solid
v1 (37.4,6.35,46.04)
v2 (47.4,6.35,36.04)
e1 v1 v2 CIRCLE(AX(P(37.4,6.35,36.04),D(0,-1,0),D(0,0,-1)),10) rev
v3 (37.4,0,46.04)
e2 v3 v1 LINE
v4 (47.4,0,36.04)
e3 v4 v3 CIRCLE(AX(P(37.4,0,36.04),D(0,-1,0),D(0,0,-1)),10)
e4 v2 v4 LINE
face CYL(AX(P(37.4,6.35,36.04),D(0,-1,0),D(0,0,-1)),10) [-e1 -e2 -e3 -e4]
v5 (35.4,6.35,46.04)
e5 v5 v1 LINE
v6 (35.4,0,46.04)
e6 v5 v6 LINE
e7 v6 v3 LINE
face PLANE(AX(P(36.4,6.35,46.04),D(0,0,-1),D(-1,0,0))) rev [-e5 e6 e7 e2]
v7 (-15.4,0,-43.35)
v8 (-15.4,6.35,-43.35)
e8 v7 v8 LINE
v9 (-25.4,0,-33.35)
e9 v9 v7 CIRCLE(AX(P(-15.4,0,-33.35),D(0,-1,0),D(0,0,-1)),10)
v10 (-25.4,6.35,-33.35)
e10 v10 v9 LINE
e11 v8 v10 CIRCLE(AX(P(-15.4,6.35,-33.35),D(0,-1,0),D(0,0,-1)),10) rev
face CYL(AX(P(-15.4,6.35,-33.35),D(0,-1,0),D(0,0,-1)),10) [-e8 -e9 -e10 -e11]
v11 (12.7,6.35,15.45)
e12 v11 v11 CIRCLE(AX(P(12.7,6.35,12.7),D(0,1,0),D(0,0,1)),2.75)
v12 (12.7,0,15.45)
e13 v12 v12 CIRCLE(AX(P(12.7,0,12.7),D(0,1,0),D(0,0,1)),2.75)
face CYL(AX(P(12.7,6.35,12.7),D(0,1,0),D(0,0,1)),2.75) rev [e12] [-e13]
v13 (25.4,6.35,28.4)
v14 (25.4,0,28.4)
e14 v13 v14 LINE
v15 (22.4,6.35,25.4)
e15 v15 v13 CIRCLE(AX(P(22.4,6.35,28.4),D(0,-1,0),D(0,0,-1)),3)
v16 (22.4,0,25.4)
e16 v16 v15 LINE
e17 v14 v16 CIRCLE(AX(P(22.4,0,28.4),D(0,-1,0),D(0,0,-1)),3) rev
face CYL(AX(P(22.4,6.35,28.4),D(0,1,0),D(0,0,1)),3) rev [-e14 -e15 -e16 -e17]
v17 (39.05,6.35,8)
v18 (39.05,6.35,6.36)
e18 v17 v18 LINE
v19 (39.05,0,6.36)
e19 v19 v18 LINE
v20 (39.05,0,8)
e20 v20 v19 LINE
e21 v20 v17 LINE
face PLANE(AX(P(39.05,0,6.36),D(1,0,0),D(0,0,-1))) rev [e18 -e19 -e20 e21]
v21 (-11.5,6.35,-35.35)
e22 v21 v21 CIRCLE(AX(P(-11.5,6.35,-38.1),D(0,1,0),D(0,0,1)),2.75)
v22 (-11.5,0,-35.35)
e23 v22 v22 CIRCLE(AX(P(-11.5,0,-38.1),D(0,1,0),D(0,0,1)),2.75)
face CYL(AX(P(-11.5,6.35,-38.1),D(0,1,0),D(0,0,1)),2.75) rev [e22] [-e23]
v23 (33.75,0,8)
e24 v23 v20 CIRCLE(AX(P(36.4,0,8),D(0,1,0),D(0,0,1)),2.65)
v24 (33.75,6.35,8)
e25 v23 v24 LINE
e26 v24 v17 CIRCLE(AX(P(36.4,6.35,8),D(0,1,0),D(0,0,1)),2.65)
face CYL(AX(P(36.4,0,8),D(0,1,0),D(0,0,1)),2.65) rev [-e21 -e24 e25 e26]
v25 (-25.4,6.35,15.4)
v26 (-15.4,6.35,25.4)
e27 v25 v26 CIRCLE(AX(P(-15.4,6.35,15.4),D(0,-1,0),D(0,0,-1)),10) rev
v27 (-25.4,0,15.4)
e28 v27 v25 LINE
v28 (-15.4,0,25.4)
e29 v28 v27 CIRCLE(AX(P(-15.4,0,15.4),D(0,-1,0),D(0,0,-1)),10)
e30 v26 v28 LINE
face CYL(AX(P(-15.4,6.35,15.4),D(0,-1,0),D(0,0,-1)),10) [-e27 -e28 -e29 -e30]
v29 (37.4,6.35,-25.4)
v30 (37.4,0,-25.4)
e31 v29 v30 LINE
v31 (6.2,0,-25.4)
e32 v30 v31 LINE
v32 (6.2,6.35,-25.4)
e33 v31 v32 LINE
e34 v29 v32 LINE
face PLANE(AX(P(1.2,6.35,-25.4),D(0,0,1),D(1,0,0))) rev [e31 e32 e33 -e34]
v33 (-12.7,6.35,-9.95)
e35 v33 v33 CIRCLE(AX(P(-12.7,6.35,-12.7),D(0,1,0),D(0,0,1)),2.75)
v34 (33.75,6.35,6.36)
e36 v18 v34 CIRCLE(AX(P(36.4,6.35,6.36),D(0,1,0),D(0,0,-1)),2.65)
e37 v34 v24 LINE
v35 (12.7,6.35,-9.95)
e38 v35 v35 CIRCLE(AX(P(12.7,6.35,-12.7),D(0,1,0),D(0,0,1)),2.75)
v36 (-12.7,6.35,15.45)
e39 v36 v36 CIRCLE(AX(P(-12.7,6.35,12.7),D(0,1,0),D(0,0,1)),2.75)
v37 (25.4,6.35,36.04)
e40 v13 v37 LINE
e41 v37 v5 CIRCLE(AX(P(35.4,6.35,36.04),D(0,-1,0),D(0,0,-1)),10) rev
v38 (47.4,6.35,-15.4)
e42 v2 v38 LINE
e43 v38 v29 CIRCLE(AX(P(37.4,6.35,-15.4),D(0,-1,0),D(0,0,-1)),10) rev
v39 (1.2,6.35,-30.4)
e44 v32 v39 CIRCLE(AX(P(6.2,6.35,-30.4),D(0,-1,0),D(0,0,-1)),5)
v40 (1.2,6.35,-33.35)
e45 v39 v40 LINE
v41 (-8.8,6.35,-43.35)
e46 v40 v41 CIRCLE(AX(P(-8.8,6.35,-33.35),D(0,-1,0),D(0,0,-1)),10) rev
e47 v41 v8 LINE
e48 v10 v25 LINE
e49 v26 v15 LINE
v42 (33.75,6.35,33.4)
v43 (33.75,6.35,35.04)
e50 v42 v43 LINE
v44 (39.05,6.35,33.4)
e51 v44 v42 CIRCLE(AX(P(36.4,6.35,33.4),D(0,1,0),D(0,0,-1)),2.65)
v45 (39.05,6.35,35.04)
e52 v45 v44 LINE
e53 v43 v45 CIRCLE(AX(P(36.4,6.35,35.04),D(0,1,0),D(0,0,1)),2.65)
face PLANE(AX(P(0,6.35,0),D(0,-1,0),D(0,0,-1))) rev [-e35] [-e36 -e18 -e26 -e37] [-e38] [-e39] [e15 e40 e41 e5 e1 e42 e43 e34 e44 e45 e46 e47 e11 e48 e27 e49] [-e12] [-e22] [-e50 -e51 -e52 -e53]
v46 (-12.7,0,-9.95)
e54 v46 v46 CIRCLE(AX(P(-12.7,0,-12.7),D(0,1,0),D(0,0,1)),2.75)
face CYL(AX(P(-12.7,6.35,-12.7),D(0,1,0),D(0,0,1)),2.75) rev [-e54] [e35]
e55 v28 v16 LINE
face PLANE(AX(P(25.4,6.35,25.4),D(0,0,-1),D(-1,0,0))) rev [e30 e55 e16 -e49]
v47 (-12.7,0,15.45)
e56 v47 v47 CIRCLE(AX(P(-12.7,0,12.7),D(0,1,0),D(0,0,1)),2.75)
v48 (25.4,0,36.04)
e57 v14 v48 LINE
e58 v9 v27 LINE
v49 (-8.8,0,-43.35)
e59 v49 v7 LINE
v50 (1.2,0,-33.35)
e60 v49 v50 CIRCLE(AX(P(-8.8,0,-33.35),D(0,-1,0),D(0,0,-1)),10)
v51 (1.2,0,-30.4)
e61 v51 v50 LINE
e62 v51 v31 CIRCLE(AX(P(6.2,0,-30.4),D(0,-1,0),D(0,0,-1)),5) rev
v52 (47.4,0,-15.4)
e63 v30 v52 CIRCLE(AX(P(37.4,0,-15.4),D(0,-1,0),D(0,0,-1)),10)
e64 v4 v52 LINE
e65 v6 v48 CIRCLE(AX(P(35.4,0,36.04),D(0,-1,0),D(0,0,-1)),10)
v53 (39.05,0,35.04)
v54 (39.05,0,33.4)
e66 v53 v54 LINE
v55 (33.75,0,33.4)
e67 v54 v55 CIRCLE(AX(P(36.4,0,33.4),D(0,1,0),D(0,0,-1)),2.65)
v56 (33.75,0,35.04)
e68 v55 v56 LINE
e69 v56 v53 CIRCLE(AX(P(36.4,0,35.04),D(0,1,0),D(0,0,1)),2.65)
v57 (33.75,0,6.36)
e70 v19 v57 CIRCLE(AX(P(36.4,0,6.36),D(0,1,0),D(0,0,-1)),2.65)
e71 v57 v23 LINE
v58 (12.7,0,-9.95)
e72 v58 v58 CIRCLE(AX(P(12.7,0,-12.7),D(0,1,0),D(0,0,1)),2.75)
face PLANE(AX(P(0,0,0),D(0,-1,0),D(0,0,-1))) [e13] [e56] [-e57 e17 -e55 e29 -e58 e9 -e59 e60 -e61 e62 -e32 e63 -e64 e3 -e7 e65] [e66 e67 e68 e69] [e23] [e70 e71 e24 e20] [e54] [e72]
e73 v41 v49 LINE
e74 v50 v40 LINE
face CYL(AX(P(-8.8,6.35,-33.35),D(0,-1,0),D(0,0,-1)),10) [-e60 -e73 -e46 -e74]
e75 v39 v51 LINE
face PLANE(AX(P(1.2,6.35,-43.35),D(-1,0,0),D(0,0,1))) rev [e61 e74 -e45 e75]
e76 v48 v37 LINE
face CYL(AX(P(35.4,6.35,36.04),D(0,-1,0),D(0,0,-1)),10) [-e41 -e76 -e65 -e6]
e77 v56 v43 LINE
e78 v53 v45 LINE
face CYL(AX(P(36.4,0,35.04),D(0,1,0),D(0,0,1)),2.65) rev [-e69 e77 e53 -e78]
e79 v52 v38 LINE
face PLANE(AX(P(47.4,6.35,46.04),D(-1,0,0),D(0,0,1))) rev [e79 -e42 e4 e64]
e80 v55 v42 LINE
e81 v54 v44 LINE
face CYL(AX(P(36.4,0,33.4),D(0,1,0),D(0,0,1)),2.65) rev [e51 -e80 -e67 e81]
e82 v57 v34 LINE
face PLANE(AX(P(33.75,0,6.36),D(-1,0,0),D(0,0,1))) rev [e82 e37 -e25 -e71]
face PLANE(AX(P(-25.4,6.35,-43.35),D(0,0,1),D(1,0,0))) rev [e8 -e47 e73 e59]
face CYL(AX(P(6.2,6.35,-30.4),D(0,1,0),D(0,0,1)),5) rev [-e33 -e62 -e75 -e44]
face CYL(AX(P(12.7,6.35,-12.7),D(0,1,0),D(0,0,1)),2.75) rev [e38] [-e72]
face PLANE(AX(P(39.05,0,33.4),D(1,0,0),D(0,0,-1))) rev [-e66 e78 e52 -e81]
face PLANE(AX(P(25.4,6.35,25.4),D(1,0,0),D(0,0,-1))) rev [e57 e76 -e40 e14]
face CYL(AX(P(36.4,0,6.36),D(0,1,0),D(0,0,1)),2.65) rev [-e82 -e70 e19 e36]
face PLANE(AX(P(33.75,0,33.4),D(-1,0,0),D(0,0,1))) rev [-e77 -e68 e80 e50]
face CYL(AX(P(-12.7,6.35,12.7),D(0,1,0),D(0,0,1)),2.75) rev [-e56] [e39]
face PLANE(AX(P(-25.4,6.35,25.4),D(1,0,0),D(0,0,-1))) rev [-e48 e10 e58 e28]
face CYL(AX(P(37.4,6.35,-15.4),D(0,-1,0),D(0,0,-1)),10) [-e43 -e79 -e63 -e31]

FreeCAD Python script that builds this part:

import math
import FreeCAD as App
import Part
import Sketcher
from FreeCAD import Vector
Q = App.Units.Quantity


def edges_at(feature, points):
    """Names of the edges that pass closest to the given points."""
    edges = feature.Shape.Edges
    near = lambda p: min(range(len(edges)), key=lambda i: edges[i].distToShape(Part.Vertex(*p))[0])
    return sorted({f"Edge{near(p) + 1}" for p in points})


def add_polygon(sketch, points):
    """Adds a closed chain of lines whose ends are joined by coincident constraints."""
    first, n = sketch.GeometryCount, len(points)
    for a, b in zip(points, points[1:] + points[:1]):
        sketch.addGeometry(Part.LineSegment(App.Vector(*a, 0), App.Vector(*b, 0)), False)
    for i in range(n):
        sketch.addConstraint(Sketcher.Constraint("Coincident", first + i, 2, first + (i + 1) % n, 1))

doc = App.newDocument("Part")
params = doc.addObject("Spreadsheet::Sheet", "Params")
for row, (alias, value) in enumerate([
    ("sketch1_width", "22 mm"),
    ("sketch1_width2", "50.8 mm"),
    ("sketch1_width3", "46.2 mm"),
    ("sketch1_height", "20.64 mm"),
    ("sketch1_height2", "71.44 mm"),
    ("pad1_length", "6.35 mm"),
    ("sketch2_diameter", "5.5 mm"),
    ("hole_diameter", "5.5 mm"),
    ("sketch3_radius", "2.65 mm"),
    ("sketch3_height", "1.64 mm"),
    ("fillet_radius", "10 mm"),
    ("fillet2_radius", "3 mm"),
    ("fillet3_radius", "5 mm"),
], start=1):
    params.set(f"A{row}", alias)
    params.set(f"B{row}", "=" + value)
    params.setAlias(f"B{row}", alias)

body = doc.addObject("PartDesign::Body", "Body")

# Sketch on XZ plane
sketch1 = body.newObject("Sketcher::SketchObject", "Sketch")
sketch1.AttachmentSupport = (doc.getObject("XZ_Plane"), [""])
sketch1.MapMode = "FlatFace"
add_polygon(sketch1, [(-25.4, 25.4), (25.4, 25.4), (25.4, 46.04), (47.4, 46.04), (47.4, -25.4), (1.2, -25.4), (1.2, -43.35), (-25.4, -43.35)])  # lines 0-7
sketch1.addConstraint([
    Sketcher.Constraint("Horizontal", 0),
    Sketcher.Constraint("Vertical", 1),
    Sketcher.Constraint("Horizontal", 2),
    Sketcher.Constraint("Vertical", 3),
    Sketcher.Constraint("Horizontal", 4),
    Sketcher.Constraint("Vertical", 5),
    Sketcher.Constraint("Horizontal", 6),
    Sketcher.Constraint("Vertical", 7),
    Sketcher.Constraint("DistanceX", 2, 1, 2, 2, Q("22 mm")),
    Sketcher.Constraint("DistanceX", 0, 1, 0, 2, Q("50.8 mm")),
    Sketcher.Constraint("DistanceX", 4, 2, 4, 1, Q("46.2 mm")),
    Sketcher.Constraint("DistanceY", 1, 1, 1, 2, Q("20.64 mm")),
    Sketcher.Constraint("DistanceY", 3, 2, 3, 1, Q("71.44 mm")),
    Sketcher.Constraint("DistanceY", 5, 2, 5, 1, Q("17.95 mm")),
    Sketcher.Constraint("DistanceX", -1, 1, 0, 2, Q("25.4 mm")),
    Sketcher.Constraint("DistanceY", -1, 1, 0, 2, Q("25.4 mm")),
])
sketch1.setExpression("Constraints[16]", "Params.sketch1_width")
sketch1.setExpression("Constraints[17]", "Params.sketch1_width2")
sketch1.setExpression("Constraints[18]", "Params.sketch1_width3")
sketch1.setExpression("Constraints[19]", "Params.sketch1_height")
sketch1.setExpression("Constraints[20]", "Params.sketch1_height2")
pad1 = body.newObject("PartDesign::Pad", "Pad")
pad1.Profile = sketch1
pad1.setExpression("Length", "Params.pad1_length")
pad1.Reversed = True

# Sketch on XZ plane
sketch2 = body.newObject("Sketcher::SketchObject", "Sketch001")
sketch2.AttachmentSupport = (doc.getObject("XZ_Plane"), [""])
sketch2.MapMode = "FlatFace"
sketch2.AttachmentOffset = App.Placement(Vector(0, 0, -6.35), App.Rotation())
sketch2.addGeometry([
    Part.Circle(Vector(-12.7, -12.7, 0), Vector(0, 0, 1), 2.75),  # 0
    Part.Circle(Vector(12.7, -12.7, 0), Vector(0, 0, 1), 2.75),  # 1
    Part.Circle(Vector(12.7, 12.7, 0), Vector(0, 0, 1), 2.75),  # 2
    Part.Circle(Vector(-12.7, 12.7, 0), Vector(0, 0, 1), 2.75),  # 3
    Part.Circle(Vector(-11.5, -38.1, 0), Vector(0, 0, 1), 2.75),  # 4
], False)
sketch2.addConstraint([
    Sketcher.Constraint("Equal", 0, 1),
    Sketcher.Constraint("Equal", 1, 2),
    Sketcher.Constraint("Equal", 2, 3),
    Sketcher.Constraint("Equal", 3, 4),
    Sketcher.Constraint("Symmetric", 0, 3, 2, 3, -1, 1),
    Sketcher.Constraint("Symmetric", 1, 3, 3, 3, -1, 1),
    Sketcher.Constraint("Symmetric", 0, 3, 1, 3, -2),
    Sketcher.Constraint("Diameter", 0, Q("5.5 mm")),
    Sketcher.Constraint("DistanceX", 0, 3, -1, 1, Q("12.7 mm")),
    Sketcher.Constraint("DistanceY", 0, 3, -1, 1, Q("12.7 mm")),
    Sketcher.Constraint("DistanceX", 4, 3, -1, 1, Q("11.5 mm")),
    Sketcher.Constraint("DistanceY", 4, 3, -1, 1, Q("38.1 mm")),
])
sketch2.setExpression("Constraints[7]", "Params.sketch2_diameter")
doc.recompute()
hole = body.newObject("PartDesign::Hole", "Hole")
hole.Profile = sketch2
hole.ThreadType = "None"
hole.setExpression("Diameter", "Params.hole_diameter")
hole.DepthType = "ThroughAll"
hole.Reversed = True

# Sketch on XZ plane
sketch3 = body.newObject("Sketcher::SketchObject", "Sketch002")
sketch3.AttachmentSupport = (doc.getObject("XZ_Plane"), [""])
sketch3.MapMode = "FlatFace"
sketch3.AttachmentOffset = App.Placement(Vector(0, 0, -6.35), App.Rotation())
sketch3.addGeometry([
    Part.LineSegment(Vector(33.75, 33.4, 0), Vector(33.75, 35.04, 0)),  # 0
    Part.ArcOfCircle(Part.Circle(Vector(36.4, 35.04, 0), Vector(0, 0, 1), 2.65), math.radians(0), math.radians(180)),  # 1
    Part.LineSegment(Vector(39.05, 35.04, 0), Vector(39.05, 33.4, 0)),  # 2
    Part.ArcOfCircle(Part.Circle(Vector(36.4, 33.4, 0), Vector(0, 0, 1), 2.65), math.radians(180), math.radians(360)),  # 3
    Part.LineSegment(Vector(33.75, 6.36, 0), Vector(33.75, 8, 0)),  # 4
    Part.ArcOfCircle(Part.Circle(Vector(36.4, 8, 0), Vector(0, 0, 1), 2.65), math.radians(0), math.radians(180)),  # 5
    Part.LineSegment(Vector(39.05, 8, 0), Vector(39.05, 6.36, 0)),  # 6
    Part.ArcOfCircle(Part.Circle(Vector(36.4, 6.36, 0), Vector(0, 0, 1), 2.65), math.radians(180), math.radians(360)),  # 7
], False)
sketch3.addConstraint([
    Sketcher.Constraint("Tangent", 0, 2, 1, 2),
    Sketcher.Constraint("Tangent", 1, 1, 2, 1),
    Sketcher.Constraint("Tangent", 2, 2, 3, 2),
    Sketcher.Constraint("Tangent", 3, 1, 0, 1),
    Sketcher.Constraint("Tangent", 4, 2, 5, 2),
    Sketcher.Constraint("Tangent", 5, 1, 6, 1),
    Sketcher.Constraint("Tangent", 6, 2, 7, 2),
    Sketcher.Constraint("Tangent", 7, 1, 4, 1),
    Sketcher.Constraint("Vertical", 0),
    Sketcher.Constraint("Vertical", 2),
    Sketcher.Constraint("Vertical", 4),
    Sketcher.Constraint("Vertical", 6),
    Sketcher.Constraint("Equal", 3, 5),
    Sketcher.Constraint("Vertical", 3, 3, 5, 3),
    Sketcher.Constraint("Equal", 2, 4),
    Sketcher.Constraint("Radius", 1, Q("2.65 mm")),
    Sketcher.Constraint("DistanceY", -1, 1, 5, 3, Q("8 mm")),
    Sketcher.Constraint("DistanceY", 0, 1, 0, 2, Q("1.64 mm")),
    Sketcher.Constraint("DistanceX", -1, 1, 1, 3, Q("36.4 mm")),
    Sketcher.Constraint("DistanceY", -1, 1, 3, 3, Q("33.4 mm")),
])
sketch3.setExpression("Constraints[15]", "Params.sketch3_radius")
sketch3.setExpression("Constraints[17]", "Params.sketch3_height")
pocket1 = body.newObject("PartDesign::Pocket", "Pocket")
pocket1.Profile = sketch3
pocket1.Type = "ThroughAll"
pocket1.Reversed = True
doc.recompute()

fillet = body.newObject("PartDesign::Fillet", "Fillet")
fillet.Base = (pocket1, edges_at(pocket1, [
    (-25.4, 3.175, -43.35),
    (1.2, 3.175, -43.35),
    (47.4, 3.175, -25.4),
    (47.4, 3.175, 46.04),
    (25.4, 3.175, 46.04),
    (-25.4, 3.175, 25.4),
]))
fillet.setExpression("Radius", "Params.fillet_radius")
doc.recompute()

fillet2 = body.newObject("PartDesign::Fillet", "Fillet001")
fillet2.Base = (fillet, edges_at(fillet, [(25.4, 3.175, 25.4)]))
fillet2.setExpression("Radius", "Params.fillet2_radius")
doc.recompute()

fillet3 = body.newObject("PartDesign::Fillet", "Fillet002")
fillet3.Base = (fillet2, edges_at(fillet2, [(1.2, 3.175, -25.4)]))
fillet3.setExpression("Radius", "Params.fillet3_radius")

doc.recompute()
